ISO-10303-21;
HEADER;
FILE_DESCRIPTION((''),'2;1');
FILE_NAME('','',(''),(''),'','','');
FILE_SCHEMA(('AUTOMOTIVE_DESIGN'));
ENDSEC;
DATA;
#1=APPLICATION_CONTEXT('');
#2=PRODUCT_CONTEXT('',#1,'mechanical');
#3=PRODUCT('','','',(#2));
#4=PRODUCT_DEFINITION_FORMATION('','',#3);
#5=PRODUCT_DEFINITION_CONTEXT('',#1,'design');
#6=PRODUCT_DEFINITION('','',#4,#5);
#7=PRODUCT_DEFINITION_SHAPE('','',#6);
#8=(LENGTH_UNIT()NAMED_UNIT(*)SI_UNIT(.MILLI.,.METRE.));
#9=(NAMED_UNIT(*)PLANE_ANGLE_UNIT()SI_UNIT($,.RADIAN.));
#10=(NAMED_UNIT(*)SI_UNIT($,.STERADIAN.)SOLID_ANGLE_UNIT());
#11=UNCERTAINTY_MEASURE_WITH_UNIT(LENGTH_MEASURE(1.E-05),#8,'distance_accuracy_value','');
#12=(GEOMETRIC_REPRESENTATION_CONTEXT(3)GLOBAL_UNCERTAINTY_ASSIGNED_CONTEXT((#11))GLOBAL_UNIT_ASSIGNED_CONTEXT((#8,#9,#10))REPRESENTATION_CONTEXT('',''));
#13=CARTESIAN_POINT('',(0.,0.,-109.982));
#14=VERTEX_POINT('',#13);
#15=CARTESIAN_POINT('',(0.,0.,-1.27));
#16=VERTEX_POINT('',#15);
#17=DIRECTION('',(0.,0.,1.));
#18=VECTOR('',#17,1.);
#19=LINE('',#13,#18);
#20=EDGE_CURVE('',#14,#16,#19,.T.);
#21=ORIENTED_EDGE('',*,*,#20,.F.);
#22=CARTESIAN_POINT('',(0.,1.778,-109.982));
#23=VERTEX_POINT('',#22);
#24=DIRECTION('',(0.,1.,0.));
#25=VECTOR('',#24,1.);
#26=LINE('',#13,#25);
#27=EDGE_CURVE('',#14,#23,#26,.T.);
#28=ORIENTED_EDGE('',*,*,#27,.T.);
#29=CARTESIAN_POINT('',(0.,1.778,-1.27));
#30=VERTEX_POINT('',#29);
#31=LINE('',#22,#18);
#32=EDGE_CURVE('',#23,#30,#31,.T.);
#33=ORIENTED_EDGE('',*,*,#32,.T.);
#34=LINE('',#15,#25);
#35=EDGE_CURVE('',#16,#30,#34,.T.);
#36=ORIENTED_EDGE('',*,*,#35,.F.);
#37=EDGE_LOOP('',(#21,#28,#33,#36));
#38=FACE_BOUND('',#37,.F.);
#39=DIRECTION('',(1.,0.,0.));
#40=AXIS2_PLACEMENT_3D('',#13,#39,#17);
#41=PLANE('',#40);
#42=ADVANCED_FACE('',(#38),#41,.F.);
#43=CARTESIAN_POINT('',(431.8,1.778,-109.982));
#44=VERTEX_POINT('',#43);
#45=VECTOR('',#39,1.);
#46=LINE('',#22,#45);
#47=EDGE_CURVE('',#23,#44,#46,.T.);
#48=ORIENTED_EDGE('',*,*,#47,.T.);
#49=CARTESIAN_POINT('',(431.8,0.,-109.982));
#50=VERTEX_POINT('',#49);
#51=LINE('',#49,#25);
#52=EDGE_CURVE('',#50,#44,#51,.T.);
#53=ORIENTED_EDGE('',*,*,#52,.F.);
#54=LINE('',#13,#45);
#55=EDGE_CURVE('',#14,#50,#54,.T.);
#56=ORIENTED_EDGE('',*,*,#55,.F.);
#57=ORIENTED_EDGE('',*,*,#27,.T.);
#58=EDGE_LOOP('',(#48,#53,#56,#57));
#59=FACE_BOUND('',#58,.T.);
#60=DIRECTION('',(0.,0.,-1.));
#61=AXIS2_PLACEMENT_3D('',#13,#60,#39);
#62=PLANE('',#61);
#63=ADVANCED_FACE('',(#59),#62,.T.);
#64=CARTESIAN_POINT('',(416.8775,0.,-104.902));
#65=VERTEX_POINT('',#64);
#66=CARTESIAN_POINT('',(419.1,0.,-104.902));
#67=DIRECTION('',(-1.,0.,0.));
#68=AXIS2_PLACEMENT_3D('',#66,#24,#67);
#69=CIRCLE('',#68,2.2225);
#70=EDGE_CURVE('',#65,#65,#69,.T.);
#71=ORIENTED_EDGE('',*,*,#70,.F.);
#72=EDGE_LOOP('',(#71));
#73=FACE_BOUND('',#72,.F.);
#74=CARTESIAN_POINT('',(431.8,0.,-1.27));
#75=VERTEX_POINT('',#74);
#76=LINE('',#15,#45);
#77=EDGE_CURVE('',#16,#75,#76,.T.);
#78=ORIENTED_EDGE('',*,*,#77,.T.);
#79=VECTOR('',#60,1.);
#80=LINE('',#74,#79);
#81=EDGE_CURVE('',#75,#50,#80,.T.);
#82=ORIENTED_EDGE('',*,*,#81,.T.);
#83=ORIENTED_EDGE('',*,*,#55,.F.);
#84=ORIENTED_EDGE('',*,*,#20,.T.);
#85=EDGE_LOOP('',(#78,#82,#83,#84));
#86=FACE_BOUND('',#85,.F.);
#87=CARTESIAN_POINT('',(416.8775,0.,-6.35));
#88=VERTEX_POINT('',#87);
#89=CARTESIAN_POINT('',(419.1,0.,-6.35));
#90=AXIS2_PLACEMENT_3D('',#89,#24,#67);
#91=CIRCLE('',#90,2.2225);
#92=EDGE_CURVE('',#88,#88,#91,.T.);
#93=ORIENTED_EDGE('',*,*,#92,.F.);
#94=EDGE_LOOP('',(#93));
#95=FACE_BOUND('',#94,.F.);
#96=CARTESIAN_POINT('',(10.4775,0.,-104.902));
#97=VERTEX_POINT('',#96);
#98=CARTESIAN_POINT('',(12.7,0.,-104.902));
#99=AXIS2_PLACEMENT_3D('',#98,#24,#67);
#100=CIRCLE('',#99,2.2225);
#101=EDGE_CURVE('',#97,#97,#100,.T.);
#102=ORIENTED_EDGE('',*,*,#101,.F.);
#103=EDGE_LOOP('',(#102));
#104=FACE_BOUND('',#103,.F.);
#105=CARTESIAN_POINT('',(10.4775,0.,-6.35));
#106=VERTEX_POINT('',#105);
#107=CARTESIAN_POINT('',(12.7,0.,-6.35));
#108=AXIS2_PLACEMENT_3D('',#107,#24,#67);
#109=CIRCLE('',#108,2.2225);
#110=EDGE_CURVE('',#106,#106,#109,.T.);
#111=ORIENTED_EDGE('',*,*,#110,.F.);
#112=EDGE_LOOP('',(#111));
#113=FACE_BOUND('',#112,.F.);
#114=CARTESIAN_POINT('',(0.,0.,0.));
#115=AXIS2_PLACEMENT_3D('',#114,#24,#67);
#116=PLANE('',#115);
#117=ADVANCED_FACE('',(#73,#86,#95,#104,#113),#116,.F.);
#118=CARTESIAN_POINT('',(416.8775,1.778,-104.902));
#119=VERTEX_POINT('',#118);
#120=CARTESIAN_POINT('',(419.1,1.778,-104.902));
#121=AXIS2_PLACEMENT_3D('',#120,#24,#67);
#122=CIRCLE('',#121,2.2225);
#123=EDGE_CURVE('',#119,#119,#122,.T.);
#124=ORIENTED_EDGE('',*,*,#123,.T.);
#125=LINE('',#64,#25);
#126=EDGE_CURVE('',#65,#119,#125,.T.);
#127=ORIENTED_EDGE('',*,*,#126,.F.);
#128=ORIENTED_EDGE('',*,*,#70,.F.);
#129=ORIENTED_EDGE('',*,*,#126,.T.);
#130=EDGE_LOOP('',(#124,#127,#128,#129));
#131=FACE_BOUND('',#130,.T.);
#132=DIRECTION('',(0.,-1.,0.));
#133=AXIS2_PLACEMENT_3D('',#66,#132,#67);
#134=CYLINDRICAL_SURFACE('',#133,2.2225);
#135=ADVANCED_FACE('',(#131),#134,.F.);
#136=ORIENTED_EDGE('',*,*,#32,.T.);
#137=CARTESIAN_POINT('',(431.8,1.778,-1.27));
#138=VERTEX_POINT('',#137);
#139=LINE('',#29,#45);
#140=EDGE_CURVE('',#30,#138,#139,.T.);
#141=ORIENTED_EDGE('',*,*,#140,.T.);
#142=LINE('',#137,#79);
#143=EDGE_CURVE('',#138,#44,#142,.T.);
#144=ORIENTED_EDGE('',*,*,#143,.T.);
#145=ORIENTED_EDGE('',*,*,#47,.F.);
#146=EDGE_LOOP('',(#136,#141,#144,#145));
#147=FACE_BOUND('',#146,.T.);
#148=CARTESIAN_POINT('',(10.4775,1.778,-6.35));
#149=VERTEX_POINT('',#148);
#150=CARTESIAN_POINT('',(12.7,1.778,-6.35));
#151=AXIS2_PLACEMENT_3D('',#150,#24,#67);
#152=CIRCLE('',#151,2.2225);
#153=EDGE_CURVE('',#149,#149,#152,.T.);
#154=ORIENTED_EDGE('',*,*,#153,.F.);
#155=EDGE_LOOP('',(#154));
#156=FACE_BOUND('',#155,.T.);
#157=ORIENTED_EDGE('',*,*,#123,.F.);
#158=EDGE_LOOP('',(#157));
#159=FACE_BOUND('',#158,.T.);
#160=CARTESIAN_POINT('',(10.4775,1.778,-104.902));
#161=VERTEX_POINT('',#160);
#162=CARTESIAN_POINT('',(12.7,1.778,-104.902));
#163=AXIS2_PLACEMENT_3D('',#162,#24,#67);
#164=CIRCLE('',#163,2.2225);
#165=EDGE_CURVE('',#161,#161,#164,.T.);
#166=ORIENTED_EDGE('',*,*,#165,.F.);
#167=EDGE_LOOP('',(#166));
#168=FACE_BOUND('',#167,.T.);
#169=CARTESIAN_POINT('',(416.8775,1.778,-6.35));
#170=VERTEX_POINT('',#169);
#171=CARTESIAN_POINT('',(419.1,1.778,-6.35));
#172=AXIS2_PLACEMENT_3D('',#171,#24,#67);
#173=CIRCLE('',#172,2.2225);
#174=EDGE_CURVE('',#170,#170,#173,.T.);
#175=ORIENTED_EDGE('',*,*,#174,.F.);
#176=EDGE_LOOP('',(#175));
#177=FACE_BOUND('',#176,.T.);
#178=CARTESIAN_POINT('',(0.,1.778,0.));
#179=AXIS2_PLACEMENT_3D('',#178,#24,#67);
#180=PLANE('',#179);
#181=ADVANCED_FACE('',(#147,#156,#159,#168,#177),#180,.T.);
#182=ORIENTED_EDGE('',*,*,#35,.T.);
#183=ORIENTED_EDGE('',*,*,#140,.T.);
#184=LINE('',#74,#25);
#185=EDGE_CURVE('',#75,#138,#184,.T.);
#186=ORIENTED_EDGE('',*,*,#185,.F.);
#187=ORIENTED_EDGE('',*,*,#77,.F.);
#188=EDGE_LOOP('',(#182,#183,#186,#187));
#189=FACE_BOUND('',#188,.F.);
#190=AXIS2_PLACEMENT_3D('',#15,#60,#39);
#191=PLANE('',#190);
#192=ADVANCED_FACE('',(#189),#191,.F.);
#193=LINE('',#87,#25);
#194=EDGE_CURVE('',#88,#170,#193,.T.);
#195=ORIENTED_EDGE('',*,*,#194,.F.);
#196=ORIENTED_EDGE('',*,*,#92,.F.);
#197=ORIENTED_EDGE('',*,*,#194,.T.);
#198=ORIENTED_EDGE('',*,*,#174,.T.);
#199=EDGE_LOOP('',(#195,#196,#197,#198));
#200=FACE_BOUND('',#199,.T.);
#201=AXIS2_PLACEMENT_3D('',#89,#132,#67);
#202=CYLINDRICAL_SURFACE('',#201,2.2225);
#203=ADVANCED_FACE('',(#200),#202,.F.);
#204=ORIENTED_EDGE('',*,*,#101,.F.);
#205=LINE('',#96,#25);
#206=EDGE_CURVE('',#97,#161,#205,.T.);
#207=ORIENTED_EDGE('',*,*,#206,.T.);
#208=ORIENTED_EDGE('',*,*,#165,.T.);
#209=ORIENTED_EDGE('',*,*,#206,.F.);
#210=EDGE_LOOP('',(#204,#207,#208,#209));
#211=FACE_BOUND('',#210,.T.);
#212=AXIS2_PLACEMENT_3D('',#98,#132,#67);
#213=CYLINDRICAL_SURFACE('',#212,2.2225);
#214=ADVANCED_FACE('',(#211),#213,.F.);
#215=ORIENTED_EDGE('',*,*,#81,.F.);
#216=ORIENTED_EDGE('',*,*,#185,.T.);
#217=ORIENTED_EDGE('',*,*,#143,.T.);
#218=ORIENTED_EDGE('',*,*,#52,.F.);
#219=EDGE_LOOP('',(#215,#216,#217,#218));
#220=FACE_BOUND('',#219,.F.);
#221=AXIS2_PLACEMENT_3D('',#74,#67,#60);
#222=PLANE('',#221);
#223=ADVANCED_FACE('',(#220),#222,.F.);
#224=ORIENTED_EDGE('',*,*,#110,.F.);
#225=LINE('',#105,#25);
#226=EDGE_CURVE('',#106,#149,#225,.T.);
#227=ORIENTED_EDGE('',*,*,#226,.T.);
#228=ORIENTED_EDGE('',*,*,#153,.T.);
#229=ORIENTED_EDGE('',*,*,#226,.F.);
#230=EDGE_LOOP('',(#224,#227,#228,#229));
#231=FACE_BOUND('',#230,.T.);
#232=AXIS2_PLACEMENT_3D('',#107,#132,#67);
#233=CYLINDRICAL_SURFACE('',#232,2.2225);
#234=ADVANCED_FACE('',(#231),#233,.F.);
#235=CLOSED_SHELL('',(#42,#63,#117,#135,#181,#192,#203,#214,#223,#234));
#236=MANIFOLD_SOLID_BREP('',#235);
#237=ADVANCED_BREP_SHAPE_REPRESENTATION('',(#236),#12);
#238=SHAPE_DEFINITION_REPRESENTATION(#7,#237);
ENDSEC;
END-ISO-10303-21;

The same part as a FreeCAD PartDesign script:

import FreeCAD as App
import Part
import Sketcher
from FreeCAD import Vector
Q = App.Units.Quantity

doc = App.newDocument("Part")
body = doc.addObject("PartDesign::Body", "Body")

# Sketch on XZ plane
sketch1 = body.newObject("Sketcher::SketchObject", "Sketch")
sketch1.AttachmentSupport = (doc.getObject("XZ_Plane"), [""])
sketch1.MapMode = "FlatFace"
sketch1.addGeometry([
    Part.LineSegment(Vector(0, -1.3, 0), Vector(431.8, -1.3, 0)),  # 0
    Part.LineSegment(Vector(431.8, -1.3, 0), Vector(431.8, -110, 0)),  # 1
    Part.LineSegment(Vector(431.8, -110, 0), Vector(0, -110, 0)),  # 2
    Part.LineSegment(Vector(0, -110, 0), Vector(0, -1.3, 0)),  # 3
    Part.Circle(Vector(419.1, -104.9, 0), Vector(0, 0, 1), 2.2),  # 4
    Part.Circle(Vector(12.7, -104.9, 0), Vector(0, 0, 1), 2.2),  # 5
    Part.Circle(Vector(419.1, -6.3, 0), Vector(0, 0, 1), 2.2),  # 6
    Part.Circle(Vector(12.7, -6.3, 0), Vector(0, 0, 1), 2.2),  # 7
], False)
sketch1.addConstraint([
    Sketcher.Constraint("Coincident", 0, 2, 1, 1),
    Sketcher.Constraint("Coincident", 1, 2, 2, 1),
    Sketcher.Constraint("Coincident", 2, 2, 3, 1),
    Sketcher.Constraint("Coincident", 3, 2, 0, 1),
    Sketcher.Constraint("Horizontal", 0),
    Sketcher.Constraint("Vertical", 1),
    Sketcher.Constraint("Horizontal", 2),
    Sketcher.Constraint("Vertical", 3),
    Sketcher.Constraint("Equal", 4, 5),
    Sketcher.Constraint("Equal", 5, 6),
    Sketcher.Constraint("Equal", 6, 7),
    Sketcher.Constraint("PointOnObject", 2, 2, -2),
    Sketcher.Constraint("Horizontal", 4, 3, 5, 3),
    Sketcher.Constraint("Horizontal", 6, 3, 7, 3),
    Sketcher.Constraint("Vertical", 4, 3, 6, 3),
    Sketcher.Constraint("Vertical", 5, 3, 7, 3),
    Sketcher.Constraint("DistanceX", 0, 1, 0, 2, Q("17 in")),
    Sketcher.Constraint("Diameter", 4, Q("0.175 in")),
    Sketcher.Constraint("DistanceX", 5, 3, 4, 3, Q("16 in")),
    Sketcher.Constraint("DistanceY", 1, 2, 1, 1, Q("4.28 in")),
    Sketcher.Constraint("DistanceX", -1, 1, 4, 3, Q("16.5 in")),
    Sketcher.Constraint("DistanceY", 6, 3, 0, 2, Q("0.2 in")),
    Sketcher.Constraint("DistanceY", 1, 2, 4, 3, Q("0.2 in")),
    Sketcher.Constraint("DistanceY", 4, 3, -1, 1, Q("4.13 in")),
])
pad1 = body.newObject("PartDesign::Pad", "Pad")
pad1.Profile = sketch1
pad1.Length = Q("0.07 in")
pad1.Reversed = True

doc.recompute()
